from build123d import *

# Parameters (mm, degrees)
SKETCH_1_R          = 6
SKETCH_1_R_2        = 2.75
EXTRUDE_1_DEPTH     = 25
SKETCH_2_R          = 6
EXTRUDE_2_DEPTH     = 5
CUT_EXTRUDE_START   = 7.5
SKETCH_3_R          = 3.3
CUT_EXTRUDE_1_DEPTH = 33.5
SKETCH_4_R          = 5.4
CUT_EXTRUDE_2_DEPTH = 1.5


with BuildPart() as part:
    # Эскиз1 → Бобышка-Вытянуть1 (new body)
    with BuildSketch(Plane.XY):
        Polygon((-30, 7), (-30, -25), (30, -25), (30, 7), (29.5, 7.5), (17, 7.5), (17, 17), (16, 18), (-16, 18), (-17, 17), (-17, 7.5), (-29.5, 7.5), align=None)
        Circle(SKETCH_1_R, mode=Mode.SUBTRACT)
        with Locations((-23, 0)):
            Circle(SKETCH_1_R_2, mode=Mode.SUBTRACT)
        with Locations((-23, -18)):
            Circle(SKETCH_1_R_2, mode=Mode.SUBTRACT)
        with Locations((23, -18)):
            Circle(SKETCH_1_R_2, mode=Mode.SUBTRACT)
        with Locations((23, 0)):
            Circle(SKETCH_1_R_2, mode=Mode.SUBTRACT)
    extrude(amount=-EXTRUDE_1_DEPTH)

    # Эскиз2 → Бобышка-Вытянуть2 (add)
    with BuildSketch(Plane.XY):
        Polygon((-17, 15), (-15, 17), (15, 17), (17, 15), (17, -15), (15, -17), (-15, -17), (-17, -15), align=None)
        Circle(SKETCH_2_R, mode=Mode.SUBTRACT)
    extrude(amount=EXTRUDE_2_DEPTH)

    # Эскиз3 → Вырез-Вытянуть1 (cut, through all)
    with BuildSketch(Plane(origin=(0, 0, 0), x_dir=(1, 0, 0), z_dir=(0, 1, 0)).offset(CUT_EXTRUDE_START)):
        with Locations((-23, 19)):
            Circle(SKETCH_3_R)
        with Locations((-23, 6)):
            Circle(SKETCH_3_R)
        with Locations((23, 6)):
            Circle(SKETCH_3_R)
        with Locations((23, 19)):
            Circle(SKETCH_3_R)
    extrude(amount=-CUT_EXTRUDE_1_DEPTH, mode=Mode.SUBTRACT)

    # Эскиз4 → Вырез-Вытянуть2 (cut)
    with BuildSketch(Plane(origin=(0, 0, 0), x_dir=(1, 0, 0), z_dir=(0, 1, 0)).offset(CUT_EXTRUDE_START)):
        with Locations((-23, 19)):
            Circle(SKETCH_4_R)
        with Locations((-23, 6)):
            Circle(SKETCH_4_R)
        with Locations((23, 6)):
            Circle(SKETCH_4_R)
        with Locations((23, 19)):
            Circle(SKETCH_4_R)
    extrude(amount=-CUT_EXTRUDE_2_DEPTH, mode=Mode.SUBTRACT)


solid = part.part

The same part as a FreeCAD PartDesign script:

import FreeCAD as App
import Part
import Sketcher
from FreeCAD import Vector

doc = App.newDocument("Part")
body = doc.addObject("PartDesign::Body", "Body")

sketch1 = body.newObject("Sketcher::SketchObject", "Sketch")
sketch1.AttachmentSupport = (doc.getObject("XY_Plane"), [""])
sketch1.MapMode = "FlatFace"
sketch1.addGeometry([
    Part.LineSegment(Vector(-30, 7, 0), Vector(-30, -25, 0)),
    Part.LineSegment(Vector(-30, -25, 0), Vector(30, -25, 0)),
    Part.LineSegment(Vector(30, -25, 0), Vector(30, 7, 0)),
    Part.LineSegment(Vector(30, 7, 0), Vector(29.5, 7.5, 0)),
    Part.LineSegment(Vector(29.5, 7.5, 0), Vector(17, 7.5, 0)),
    Part.LineSegment(Vector(17, 7.5, 0), Vector(17, 17, 0)),
    Part.LineSegment(Vector(17, 17, 0), Vector(16, 18, 0)),
    Part.LineSegment(Vector(16, 18, 0), Vector(-16, 18, 0)),
    Part.LineSegment(Vector(-16, 18, 0), Vector(-17, 17, 0)),
    Part.LineSegment(Vector(-17, 17, 0), Vector(-17, 7.5, 0)),
    Part.LineSegment(Vector(-17, 7.5, 0), Vector(-29.5, 7.5, 0)),
    Part.LineSegment(Vector(-29.5, 7.5, 0), Vector(-30, 7, 0)),
    Part.Circle(Vector(-23, -18, 0), Vector(0, 0, 1), 2.75),
    Part.Circle(Vector(23, -18, 0), Vector(0, 0, 1), 2.75),
    Part.Circle(Vector(-23, 0, 0), Vector(0, 0, 1), 2.75),
    Part.Circle(Vector(0, 0, 0), Vector(0, 0, 1), 6),
    Part.Circle(Vector(23, 0, 0), Vector(0, 0, 1), 2.75),
], False)
sketch1.addConstraint([
    Sketcher.Constraint("Coincident", 0, 2, 1, 1),
    Sketcher.Constraint("Coincident", 1, 2, 2, 1),
    Sketcher.Constraint("Coincident", 2, 2, 3, 1),
    Sketcher.Constraint("Coincident", 3, 2, 4, 1),
    Sketcher.Constraint("Coincident", 4, 2, 5, 1),
    Sketcher.Constraint("Coincident", 5, 2, 6, 1),
    Sketcher.Constraint("Coincident", 6, 2, 7, 1),
    Sketcher.Constraint("Coincident", 7, 2, 8, 1),
    Sketcher.Constraint("Coincident", 8, 2, 9, 1),
    Sketcher.Constraint("Coincident", 9, 2, 10, 1),
    Sketcher.Constraint("Coincident", 10, 2, 11, 1),
    Sketcher.Constraint("Coincident", 11, 2, 0, 1),
    Sketcher.Constraint("Vertical", 0),
    Sketcher.Constraint("Horizontal", 1),
    Sketcher.Constraint("Vertical", 2),
    Sketcher.Constraint("Horizontal", 4),
    Sketcher.Constraint("Vertical", 5),
    Sketcher.Constraint("Horizontal", 7),
    Sketcher.Constraint("Vertical", 9),
    Sketcher.Constraint("Horizontal", 10),
    Sketcher.Constraint("Coincident", 15, 3, -1, 1),
    Sketcher.Constraint("Equal", 12, 13),
    Sketcher.Constraint("Equal", 13, 14),
    Sketcher.Constraint("Equal", 14, 16),
    Sketcher.Constraint("Symmetric", 14, 3, 16, 3, -1, 1),
    Sketcher.Constraint("Symmetric", 12, 3, 13, 3, -2),
    Sketcher.Constraint("Symmetric", 5, 2, 8, 2, -2),
    Sketcher.Constraint("Symmetric", 3, 2, 10, 2, -2),
    Sketcher.Constraint("Symmetric", 2, 2, 11, 2, -2),
    Sketcher.Constraint("PointOnObject", 14, 3, -1),
    Sketcher.Constraint("Parallel", 3, 6),
    Sketcher.Constraint("Perpendicular", 6, 8),
    Sketcher.Constraint("Parallel", 8, 11),
    Sketcher.Constraint("Vertical", 12, 3, 14, 3),
    Sketcher.Constraint("Equal", 7, 0),
    Sketcher.Constraint("Diameter", 15, 12.0),
    Sketcher.Constraint("Diameter", 12, 5.5),
    Sketcher.Constraint("DistanceX", 1, 1, 1, 2, 60.0),
    Sketcher.Constraint("DistanceX", 7, 2, 7, 1, 32.0),
    Sketcher.Constraint("DistanceX", 4, 2, 4, 1, 12.5),
    Sketcher.Constraint("DistanceY", 5, 1, 5, 2, 9.5),
    Sketcher.Constraint("DistanceX", 12, 3, -1, 1, 23.0),
    Sketcher.Constraint("DistanceY", 12, 3, -1, 1, 18.0),
    Sketcher.Constraint("DistanceY", 0, 2, -1, 1, 25.0),
    Sketcher.Constraint("DistanceX", -1, 1, 4, 2, 17.0),
])
pad1 = body.newObject("PartDesign::Pad", "Pad")
pad1.Profile = sketch1
pad1.Length = 25
pad1.Reversed = True

sketch2 = body.newObject("Sketcher::SketchObject", "Sketch001")
sketch2.AttachmentSupport = (doc.getObject("XY_Plane"), [""])
sketch2.MapMode = "FlatFace"
sketch2.addGeometry([
    Part.LineSegment(Vector(-15, 17, 0), Vector(-17, 15, 0)),
    Part.LineSegment(Vector(-17, 15, 0), Vector(-17, -15, 0)),
    Part.LineSegment(Vector(-17, -15, 0), Vector(-15, -17, 0)),
    Part.LineSegment(Vector(-15, -17, 0), Vector(15, -17, 0)),
    Part.LineSegment(Vector(15, -17, 0), Vector(17, -15, 0)),
    Part.LineSegment(Vector(17, -15, 0), Vector(17, 15, 0)),
    Part.LineSegment(Vector(17, 15, 0), Vector(15, 17, 0)),
    Part.LineSegment(Vector(15, 17, 0), Vector(-15, 17, 0)),
    Part.Circle(Vector(0, 0, 0), Vector(0, 0, 1), 6),
], False)
sketch2.addConstraint([
    Sketcher.Constraint("Coincident", 0, 2, 1, 1),
    Sketcher.Constraint("Coincident", 1, 2, 2, 1),
    Sketcher.Constraint("Coincident", 2, 2, 3, 1),
    Sketcher.Constraint("Coincident", 3, 2, 4, 1),
    Sketcher.Constraint("Coincident", 4, 2, 5, 1),
    Sketcher.Constraint("Coincident", 5, 2, 6, 1),
    Sketcher.Constraint("Coincident", 6, 2, 7, 1),
    Sketcher.Constraint("Coincident", 7, 2, 0, 1),
    Sketcher.Constraint("Vertical", 1),
    Sketcher.Constraint("Horizontal", 3),
    Sketcher.Constraint("Vertical", 5),
    Sketcher.Constraint("Horizontal", 7),
    Sketcher.Constraint("Coincident", 8, 3, -1, 1),
    Sketcher.Constraint("Symmetric", 0, 2, 4, 2, -1, 1),
    Sketcher.Constraint("Symmetric", 2, 2, 6, 2, -1, 1),
    Sketcher.Constraint("Perpendicular", 0, 2),
    Sketcher.Constraint("Perpendicular", 2, 4),
    Sketcher.Constraint("Perpendicular", 4, 6),
    Sketcher.Constraint("Horizontal", 1, 2, 4, 2),
    Sketcher.Constraint("Vertical", 3, 2, 6, 2),
    Sketcher.Constraint("Equal", 7, 1),
    Sketcher.Constraint("Diameter", 8, 12.0),
    Sketcher.Constraint("DistanceX", 3, 1, 3, 2, 30.0),
    Sketcher.Constraint("DistanceX", 0, 2, -1, 1, 17.0),
])
pad2 = body.newObject("PartDesign::Pad", "Pad001")
pad2.Profile = sketch2
pad2.Length = 5

sketch3 = body.newObject("Sketcher::SketchObject", "Sketch002")
sketch3.AttachmentSupport = (doc.getObject("XZ_Plane"), [""])
sketch3.MapMode = "FlatFace"
sketch3.AttachmentOffset = App.Placement(Vector(0, 0, -7.5), App.Rotation())
sketch3.addGeometry([
    Part.Circle(Vector(-23, -19, 0), Vector(0, 0, 1), 3.3),
    Part.Circle(Vector(-23, -6, 0), Vector(0, 0, 1), 3.3),
    Part.Circle(Vector(23, -6, 0), Vector(0, 0, 1), 3.3),
    Part.Circle(Vector(23, -19, 0), Vector(0, 0, 1), 3.3),
], False)
sketch3.addConstraint([
    Sketcher.Constraint("Equal", 0, 1),
    Sketcher.Constraint("Equal", 1, 2),
    Sketcher.Constraint("Equal", 2, 3),
    Sketcher.Constraint("Symmetric", 1, 3, 2, 3, -2),
    Sketcher.Constraint("Symmetric", 0, 3, 3, 3, -2),
    Sketcher.Constraint("Vertical", 0, 3, 1, 3),
    Sketcher.Constraint("Diameter", 0, 6.6),
    Sketcher.Constraint("DistanceX", 0, 3, -1, 1, 23.0),
    Sketcher.Constraint("DistanceY", 0, 3, -1, 1, 19.0),
    Sketcher.Constraint("DistanceY", 1, 3, -1, 1, 6.0),
])
pocket1 = body.newObject("PartDesign::Pocket", "Pocket")
pocket1.Profile = sketch3
pocket1.Type = "ThroughAll"
pocket1.Reversed = True

sketch4 = body.newObject("Sketcher::SketchObject", "Sketch003")
sketch4.AttachmentSupport = (doc.getObject("XZ_Plane"), [""])
sketch4.MapMode = "FlatFace"
sketch4.AttachmentOffset = App.Placement(Vector(0, 0, -7.5), App.Rotation())
sketch4.addGeometry([
    Part.Circle(Vector(-23, -19, 0), Vector(0, 0, 1), 5.4),
    Part.Circle(Vector(-23, -6, 0), Vector(0, 0, 1), 5.4),
    Part.Circle(Vector(23, -6, 0), Vector(0, 0, 1), 5.4),
    Part.Circle(Vector(23, -19, 0), Vector(0, 0, 1), 5.4),
], False)
sketch4.addConstraint([
    Sketcher.Constraint("Equal", 0, 1),
    Sketcher.Constraint("Equal", 1, 2),
    Sketcher.Constraint("Equal", 2, 3),
    Sketcher.Constraint("Symmetric", 1, 3, 2, 3, -2),
    Sketcher.Constraint("Symmetric", 0, 3, 3, 3, -2),
    Sketcher.Constraint("Vertical", 0, 3, 1, 3),
    Sketcher.Constraint("Diameter", 0, 10.8),
    Sketcher.Constraint("DistanceX", 0, 3, -1, 1, 23.0),
    Sketcher.Constraint("DistanceY", 0, 3, -1, 1, 19.0),
    Sketcher.Constraint("DistanceY", 1, 3, -1, 1, 6.0),
])
pocket2 = body.newObject("PartDesign::Pocket", "Pocket001")
pocket2.Profile = sketch4
pocket2.Length = 1.5
pocket2.Reversed = True

doc.recompute()
